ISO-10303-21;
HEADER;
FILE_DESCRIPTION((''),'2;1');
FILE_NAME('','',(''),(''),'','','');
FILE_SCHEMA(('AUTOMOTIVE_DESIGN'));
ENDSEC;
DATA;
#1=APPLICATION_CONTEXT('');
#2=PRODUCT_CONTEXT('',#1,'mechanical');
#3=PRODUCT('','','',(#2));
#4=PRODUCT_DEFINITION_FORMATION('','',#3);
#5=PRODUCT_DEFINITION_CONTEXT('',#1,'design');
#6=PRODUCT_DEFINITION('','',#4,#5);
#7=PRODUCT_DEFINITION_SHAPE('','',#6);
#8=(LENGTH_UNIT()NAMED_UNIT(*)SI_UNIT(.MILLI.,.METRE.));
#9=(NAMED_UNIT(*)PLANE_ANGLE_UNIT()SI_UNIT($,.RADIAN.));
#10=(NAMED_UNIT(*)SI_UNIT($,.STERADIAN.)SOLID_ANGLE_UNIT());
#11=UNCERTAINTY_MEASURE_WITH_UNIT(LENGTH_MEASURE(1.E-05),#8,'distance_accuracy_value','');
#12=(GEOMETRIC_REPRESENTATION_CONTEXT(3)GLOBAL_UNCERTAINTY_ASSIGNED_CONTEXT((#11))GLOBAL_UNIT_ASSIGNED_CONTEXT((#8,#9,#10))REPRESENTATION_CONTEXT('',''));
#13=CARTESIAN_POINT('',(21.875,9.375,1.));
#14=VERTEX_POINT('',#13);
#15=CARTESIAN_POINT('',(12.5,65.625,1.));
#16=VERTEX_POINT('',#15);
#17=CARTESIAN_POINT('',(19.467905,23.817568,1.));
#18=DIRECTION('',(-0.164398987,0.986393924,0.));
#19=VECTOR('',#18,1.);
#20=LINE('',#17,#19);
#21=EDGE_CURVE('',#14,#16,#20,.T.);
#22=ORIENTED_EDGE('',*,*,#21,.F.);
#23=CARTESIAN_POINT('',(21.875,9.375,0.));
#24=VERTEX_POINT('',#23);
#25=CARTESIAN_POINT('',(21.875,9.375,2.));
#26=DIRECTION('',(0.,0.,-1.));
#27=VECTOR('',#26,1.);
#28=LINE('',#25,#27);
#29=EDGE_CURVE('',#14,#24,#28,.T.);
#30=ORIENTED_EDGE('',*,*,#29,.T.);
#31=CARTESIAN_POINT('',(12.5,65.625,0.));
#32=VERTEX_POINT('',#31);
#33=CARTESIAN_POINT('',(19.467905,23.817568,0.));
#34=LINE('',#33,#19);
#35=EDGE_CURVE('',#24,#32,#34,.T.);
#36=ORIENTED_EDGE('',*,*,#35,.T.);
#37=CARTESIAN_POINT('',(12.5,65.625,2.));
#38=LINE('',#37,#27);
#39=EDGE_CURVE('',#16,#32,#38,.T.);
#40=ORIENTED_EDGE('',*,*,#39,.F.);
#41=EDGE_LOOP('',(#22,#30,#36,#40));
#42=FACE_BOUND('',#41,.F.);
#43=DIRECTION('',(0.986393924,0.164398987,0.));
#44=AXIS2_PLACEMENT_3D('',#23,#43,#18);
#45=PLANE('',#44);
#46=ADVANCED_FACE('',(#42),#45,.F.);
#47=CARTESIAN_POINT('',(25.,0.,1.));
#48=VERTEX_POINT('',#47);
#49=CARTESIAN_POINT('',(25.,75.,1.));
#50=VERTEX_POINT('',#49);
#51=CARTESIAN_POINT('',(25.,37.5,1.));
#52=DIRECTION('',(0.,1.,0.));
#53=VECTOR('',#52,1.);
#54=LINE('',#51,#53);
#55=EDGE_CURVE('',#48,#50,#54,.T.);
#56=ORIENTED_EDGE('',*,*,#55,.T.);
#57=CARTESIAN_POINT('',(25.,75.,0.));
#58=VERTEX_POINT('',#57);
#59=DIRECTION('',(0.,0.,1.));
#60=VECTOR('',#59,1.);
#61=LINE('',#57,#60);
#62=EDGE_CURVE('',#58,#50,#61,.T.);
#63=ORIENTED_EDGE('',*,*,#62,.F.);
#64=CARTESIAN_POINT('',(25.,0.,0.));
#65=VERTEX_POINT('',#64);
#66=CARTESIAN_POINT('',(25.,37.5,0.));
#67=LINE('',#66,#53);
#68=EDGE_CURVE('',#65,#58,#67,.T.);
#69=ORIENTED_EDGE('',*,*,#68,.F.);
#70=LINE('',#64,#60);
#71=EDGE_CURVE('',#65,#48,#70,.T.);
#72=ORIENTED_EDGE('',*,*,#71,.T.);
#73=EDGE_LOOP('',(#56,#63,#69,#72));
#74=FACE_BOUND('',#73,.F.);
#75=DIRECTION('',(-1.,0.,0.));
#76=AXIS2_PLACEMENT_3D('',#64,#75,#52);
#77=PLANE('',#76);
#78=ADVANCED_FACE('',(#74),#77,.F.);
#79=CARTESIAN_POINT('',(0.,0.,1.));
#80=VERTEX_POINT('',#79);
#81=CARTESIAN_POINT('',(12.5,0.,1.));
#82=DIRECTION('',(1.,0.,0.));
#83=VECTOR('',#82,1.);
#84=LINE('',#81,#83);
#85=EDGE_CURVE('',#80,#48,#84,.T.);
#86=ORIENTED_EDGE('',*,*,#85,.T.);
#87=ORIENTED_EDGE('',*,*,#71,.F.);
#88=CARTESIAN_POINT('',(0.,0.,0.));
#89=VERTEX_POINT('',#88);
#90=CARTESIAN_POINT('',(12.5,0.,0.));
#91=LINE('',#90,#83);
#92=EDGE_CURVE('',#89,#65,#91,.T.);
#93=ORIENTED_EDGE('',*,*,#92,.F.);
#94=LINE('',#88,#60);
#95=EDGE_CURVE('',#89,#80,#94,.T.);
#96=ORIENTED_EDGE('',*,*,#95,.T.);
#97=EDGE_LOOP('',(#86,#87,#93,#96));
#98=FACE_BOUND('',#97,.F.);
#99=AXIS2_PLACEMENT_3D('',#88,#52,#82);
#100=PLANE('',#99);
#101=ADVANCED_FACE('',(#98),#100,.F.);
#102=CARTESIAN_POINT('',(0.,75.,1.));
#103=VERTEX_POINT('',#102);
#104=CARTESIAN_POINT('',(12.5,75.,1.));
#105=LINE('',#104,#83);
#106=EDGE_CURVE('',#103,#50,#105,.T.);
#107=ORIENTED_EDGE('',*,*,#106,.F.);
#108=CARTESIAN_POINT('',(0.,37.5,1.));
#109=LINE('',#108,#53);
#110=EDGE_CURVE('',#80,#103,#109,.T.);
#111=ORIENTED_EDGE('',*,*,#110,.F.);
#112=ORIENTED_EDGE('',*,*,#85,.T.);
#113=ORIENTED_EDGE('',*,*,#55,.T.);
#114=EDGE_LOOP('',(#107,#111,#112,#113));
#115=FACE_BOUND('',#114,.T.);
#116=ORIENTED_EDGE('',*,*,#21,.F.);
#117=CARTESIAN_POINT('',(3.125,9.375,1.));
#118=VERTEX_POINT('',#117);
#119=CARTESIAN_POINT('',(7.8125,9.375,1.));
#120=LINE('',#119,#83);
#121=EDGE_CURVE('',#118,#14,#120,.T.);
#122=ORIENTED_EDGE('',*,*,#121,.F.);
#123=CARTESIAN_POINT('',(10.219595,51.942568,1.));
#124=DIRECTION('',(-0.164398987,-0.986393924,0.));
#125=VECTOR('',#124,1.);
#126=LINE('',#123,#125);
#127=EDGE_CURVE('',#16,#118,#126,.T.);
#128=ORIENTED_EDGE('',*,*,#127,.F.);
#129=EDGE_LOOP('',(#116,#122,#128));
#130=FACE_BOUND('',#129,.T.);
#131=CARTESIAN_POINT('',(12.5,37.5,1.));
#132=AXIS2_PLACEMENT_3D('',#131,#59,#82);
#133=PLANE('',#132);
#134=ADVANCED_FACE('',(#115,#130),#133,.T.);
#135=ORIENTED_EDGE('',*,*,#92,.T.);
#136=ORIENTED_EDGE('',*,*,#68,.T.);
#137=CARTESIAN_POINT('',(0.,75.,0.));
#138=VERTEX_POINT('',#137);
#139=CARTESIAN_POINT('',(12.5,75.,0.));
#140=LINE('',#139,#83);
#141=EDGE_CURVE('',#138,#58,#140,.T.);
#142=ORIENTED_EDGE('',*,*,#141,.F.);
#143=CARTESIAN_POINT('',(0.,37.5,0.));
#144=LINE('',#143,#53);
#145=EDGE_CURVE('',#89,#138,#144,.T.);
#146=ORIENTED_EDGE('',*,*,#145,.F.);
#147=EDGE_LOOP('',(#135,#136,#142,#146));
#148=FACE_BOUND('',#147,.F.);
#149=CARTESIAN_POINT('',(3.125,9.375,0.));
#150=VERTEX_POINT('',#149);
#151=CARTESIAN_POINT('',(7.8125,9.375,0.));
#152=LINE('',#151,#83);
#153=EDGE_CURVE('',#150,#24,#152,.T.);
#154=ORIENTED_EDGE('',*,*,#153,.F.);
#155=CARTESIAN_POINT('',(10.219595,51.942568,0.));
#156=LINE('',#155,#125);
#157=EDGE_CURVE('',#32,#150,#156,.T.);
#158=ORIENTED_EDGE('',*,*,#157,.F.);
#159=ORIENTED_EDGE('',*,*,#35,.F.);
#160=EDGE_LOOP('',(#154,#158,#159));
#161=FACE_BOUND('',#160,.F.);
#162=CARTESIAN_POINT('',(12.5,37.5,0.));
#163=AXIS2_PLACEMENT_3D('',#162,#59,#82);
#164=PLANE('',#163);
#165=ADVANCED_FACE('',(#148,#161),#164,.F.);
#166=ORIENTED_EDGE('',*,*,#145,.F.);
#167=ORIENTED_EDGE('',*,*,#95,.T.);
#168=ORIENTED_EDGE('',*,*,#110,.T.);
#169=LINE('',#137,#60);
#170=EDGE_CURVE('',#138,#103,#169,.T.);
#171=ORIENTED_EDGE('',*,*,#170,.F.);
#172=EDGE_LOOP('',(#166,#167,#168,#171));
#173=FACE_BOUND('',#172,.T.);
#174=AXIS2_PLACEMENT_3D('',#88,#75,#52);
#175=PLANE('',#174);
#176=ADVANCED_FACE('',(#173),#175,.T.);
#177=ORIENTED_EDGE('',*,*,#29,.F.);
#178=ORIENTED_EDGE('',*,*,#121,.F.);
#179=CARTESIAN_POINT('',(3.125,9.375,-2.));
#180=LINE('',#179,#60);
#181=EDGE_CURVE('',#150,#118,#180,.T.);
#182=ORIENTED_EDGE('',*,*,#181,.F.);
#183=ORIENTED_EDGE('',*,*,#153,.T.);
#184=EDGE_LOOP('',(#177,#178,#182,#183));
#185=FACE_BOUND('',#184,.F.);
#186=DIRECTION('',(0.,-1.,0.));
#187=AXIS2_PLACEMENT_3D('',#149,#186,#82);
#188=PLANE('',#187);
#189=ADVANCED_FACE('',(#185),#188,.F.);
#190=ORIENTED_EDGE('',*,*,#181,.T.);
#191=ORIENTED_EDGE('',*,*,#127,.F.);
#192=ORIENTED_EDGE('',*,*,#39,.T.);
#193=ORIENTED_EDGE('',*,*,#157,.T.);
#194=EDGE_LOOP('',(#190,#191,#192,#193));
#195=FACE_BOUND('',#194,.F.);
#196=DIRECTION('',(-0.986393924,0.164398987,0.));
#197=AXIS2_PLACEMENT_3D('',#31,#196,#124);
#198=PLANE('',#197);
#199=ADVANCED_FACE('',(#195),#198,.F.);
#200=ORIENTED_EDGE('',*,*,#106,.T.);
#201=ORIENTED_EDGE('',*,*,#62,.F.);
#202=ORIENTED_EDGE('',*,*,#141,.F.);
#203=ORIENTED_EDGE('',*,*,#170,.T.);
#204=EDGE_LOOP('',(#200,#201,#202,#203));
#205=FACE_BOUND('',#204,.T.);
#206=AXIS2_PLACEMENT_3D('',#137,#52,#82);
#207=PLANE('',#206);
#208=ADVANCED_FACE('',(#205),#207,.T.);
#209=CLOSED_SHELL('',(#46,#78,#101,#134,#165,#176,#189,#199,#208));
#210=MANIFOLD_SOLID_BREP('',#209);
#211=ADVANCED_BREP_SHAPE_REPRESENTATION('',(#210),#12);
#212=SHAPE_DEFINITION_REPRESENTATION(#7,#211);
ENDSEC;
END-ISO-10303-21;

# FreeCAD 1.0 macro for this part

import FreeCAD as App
import Part
import Sketcher

V = App.Vector
Q = App.Units.Quantity


def add_polygon(sketch, points):
    """Adds a closed chain of lines whose ends are joined by coincident constraints."""
    first, n = sketch.GeometryCount, len(points)
    for a, b in zip(points, points[1:] + points[:1]):
        sketch.addGeometry(Part.LineSegment(App.Vector(*a, 0), App.Vector(*b, 0)), False)
    for i in range(n):
        sketch.addConstraint(Sketcher.Constraint("Coincident", first + i, 2, first + (i + 1) % n, 1))

doc = App.newDocument("Part")
body = doc.addObject("PartDesign::Body", "Body")

sketch1 = body.newObject("Sketcher::SketchObject", "Sketch")
sketch1.AttachmentSupport = (doc.getObject("XY_Plane"), [""])
sketch1.MapMode = "FlatFace"
add_polygon(sketch1, [(12, 66), (3, 9), (22, 9)])
sketch1.addConstraint([
    Sketcher.Constraint("Horizontal", 1),
    Sketcher.Constraint("Equal", 0, 2),
    Sketcher.Constraint("DistanceX", 1, 1, 1, 2, Q("18.75 mm")),
    Sketcher.Constraint("DistanceX", -1, 1, 2, 2, Q("12.5 mm")),
    Sketcher.Constraint("DistanceY", 0, 2, 2, 2, Q("56.25 mm")),
    Sketcher.Constraint("DistanceY", -1, 1, 0, 2, Q("9.375 mm")),
])
pad1 = body.newObject("PartDesign::Pad", "Pad")
pad1.Profile = sketch1
pad1.Type = "TwoLengths"
pad1.Length = 2
pad1.Length2 = 2
body2 = doc.addObject("PartDesign::Body", "Body001")

sketch2 = body2.newObject("Sketcher::SketchObject", "Sketch001")
sketch2.AttachmentSupport = (doc.getObject("XY_Plane001"), [""])
sketch2.MapMode = "FlatFace"
add_polygon(sketch2, [(0, 75), (0, 0), (25, 0), (25, 75)])
sketch2.addConstraint([
    Sketcher.Constraint("Vertical", 0),
    Sketcher.Constraint("Horizontal", 1),
    Sketcher.Constraint("Vertical", 2),
    Sketcher.Constraint("Horizontal", 3),
    Sketcher.Constraint("Coincident", 0, 2, -1, 1),
    Sketcher.Constraint("DistanceX", 1, 1, 1, 2, Q("25 mm")),
    Sketcher.Constraint("DistanceY", 0, 2, 0, 1, Q("75 mm")),
])
pad2 = body2.newObject("PartDesign::Pad", "Pad001")
pad2.Profile = sketch2
pad2.Length = 1
doc.recompute()

boolean = body2.newObject("PartDesign::Boolean", "Boolean")
boolean.Type = "Cut"
boolean.addObjects([body])

doc.recompute()
